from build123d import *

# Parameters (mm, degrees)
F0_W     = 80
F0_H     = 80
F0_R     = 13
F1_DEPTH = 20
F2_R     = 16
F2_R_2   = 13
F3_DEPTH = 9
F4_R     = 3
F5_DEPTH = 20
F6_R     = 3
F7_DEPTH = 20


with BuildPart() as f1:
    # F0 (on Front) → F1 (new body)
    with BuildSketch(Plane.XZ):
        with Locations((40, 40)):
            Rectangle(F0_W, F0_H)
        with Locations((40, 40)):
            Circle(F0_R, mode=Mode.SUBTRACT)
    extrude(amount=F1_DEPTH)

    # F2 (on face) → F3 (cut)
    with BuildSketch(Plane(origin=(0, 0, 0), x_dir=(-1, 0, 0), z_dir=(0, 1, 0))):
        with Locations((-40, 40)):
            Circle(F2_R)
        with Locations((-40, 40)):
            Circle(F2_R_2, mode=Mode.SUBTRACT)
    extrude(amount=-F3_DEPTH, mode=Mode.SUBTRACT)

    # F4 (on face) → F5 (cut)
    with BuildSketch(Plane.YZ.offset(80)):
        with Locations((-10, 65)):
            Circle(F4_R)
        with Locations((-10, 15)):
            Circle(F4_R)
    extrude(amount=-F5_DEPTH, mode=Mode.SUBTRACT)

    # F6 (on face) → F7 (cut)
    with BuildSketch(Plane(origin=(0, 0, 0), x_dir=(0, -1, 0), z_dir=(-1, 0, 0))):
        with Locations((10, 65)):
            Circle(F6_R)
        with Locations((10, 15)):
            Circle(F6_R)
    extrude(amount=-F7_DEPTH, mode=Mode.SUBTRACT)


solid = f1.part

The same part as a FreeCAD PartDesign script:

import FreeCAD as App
import Part
import Sketcher
Q = App.Units.Quantity


def add_polygon(sketch, points):
    """Adds a closed chain of lines whose ends are joined by coincident constraints."""
    first, n = sketch.GeometryCount, len(points)
    for a, b in zip(points, points[1:] + points[:1]):
        sketch.addGeometry(Part.LineSegment(App.Vector(*a, 0), App.Vector(*b, 0)), False)
    for i in range(n):
        sketch.addConstraint(Sketcher.Constraint("Coincident", first + i, 2, first + (i + 1) % n, 1))

doc = App.newDocument("Part")
params = doc.addObject("Spreadsheet::Sheet", "Params")
for row, (alias, value) in enumerate([
    ("sketch1_diameter", "26 mm"),
    ("sketch1_width", "80 mm"),
    ("pad1_length", "20 mm"),
    ("sketch2_diameter", "32 mm"),
    ("sketch2_diameter2", "26 mm"),
    ("pocket1_length", "9 mm"),
    ("sketch3_diameter", "6 mm"),
    ("pocket2_length", "20 mm"),
    ("sketch4_diameter", "6 mm"),
    ("pocket3_length", "20 mm"),
], start=1):
    params.set(f"A{row}", alias)
    params.set(f"B{row}", "=" + value)
    params.setAlias(f"B{row}", alias)

body = doc.addObject("PartDesign::Body", "Body")

# Sketch on XZ plane
sketch1 = body.newObject("Sketcher::SketchObject", "Sketch")
sketch1.AttachmentSupport = (doc.getObject("XZ_Plane"), [""])
sketch1.MapMode = "FlatFace"
add_polygon(sketch1, [(0, 80), (0, 0), (80, 0), (80, 80)])  # lines 0-3
sketch1.addGeometry(Part.Circle(App.Vector(40, 40, 0), App.Vector(0, 0, 1), 13), False)  # 4
sketch1.addConstraint([
    Sketcher.Constraint("Vertical", 0),
    Sketcher.Constraint("Horizontal", 1),
    Sketcher.Constraint("Vertical", 2),
    Sketcher.Constraint("Horizontal", 3),
    Sketcher.Constraint("Coincident", 0, 2, -1, 1),
    Sketcher.Constraint("Equal", 3, 0),
    Sketcher.Constraint("Diameter", 4, Q("26 mm")),
    Sketcher.Constraint("DistanceX", 1, 1, 1, 2, Q("80 mm")),
    Sketcher.Constraint("DistanceX", -1, 1, 4, 3, Q("40 mm")),
    Sketcher.Constraint("DistanceY", -1, 1, 4, 3, Q("40 mm")),
])
sketch1.setExpression("Constraints[10]", "Params.sketch1_diameter")
sketch1.setExpression("Constraints[11]", "Params.sketch1_width")
pad1 = body.newObject("PartDesign::Pad", "Pad")
pad1.Profile = sketch1
pad1.setExpression("Length", "Params.pad1_length")

# Sketch on XZ plane
sketch2 = body.newObject("Sketcher::SketchObject", "Sketch001")
sketch2.AttachmentSupport = (doc.getObject("XZ_Plane"), [""])
sketch2.MapMode = "FlatFace"
sketch2.addGeometry([
    Part.Circle(App.Vector(40, 40, 0), App.Vector(0, 0, 1), 16),
    Part.Circle(App.Vector(40, 40, 0), App.Vector(0, 0, 1), 13),
], False)
sketch2.addConstraint([
    Sketcher.Constraint("Coincident", 1, 3, 0, 3),
    Sketcher.Constraint("Diameter", 0, Q("32 mm")),
    Sketcher.Constraint("Diameter", 1, Q("26 mm")),
    Sketcher.Constraint("DistanceX", -1, 1, 0, 3, Q("40 mm")),
    Sketcher.Constraint("DistanceY", -1, 1, 0, 3, Q("40 mm")),
])
sketch2.setExpression("Constraints[1]", "Params.sketch2_diameter")
sketch2.setExpression("Constraints[2]", "Params.sketch2_diameter2")
pocket1 = body.newObject("PartDesign::Pocket", "Pocket")
pocket1.Profile = sketch2
pocket1.setExpression("Length", "Params.pocket1_length")
pocket1.Reversed = True

# Sketch on YZ plane
sketch3 = body.newObject("Sketcher::SketchObject", "Sketch002")
sketch3.AttachmentSupport = (doc.getObject("YZ_Plane"), [""])
sketch3.MapMode = "FlatFace"
sketch3.AttachmentOffset = App.Placement(App.Vector(0, 0, 80), App.Rotation())
sketch3.addGeometry([
    Part.Circle(App.Vector(-10, 65, 0), App.Vector(0, 0, 1), 3),
    Part.Circle(App.Vector(-10, 15, 0), App.Vector(0, 0, 1), 3),
], False)
sketch3.addConstraint([
    Sketcher.Constraint("Equal", 0, 1),
    Sketcher.Constraint("Vertical", 0, 3, 1, 3),
    Sketcher.Constraint("Diameter", 0, Q("6 mm")),
    Sketcher.Constraint("DistanceX", 0, 3, -1, 1, Q("10 mm")),
    Sketcher.Constraint("DistanceY", -1, 1, 0, 3, Q("65 mm")),
    Sketcher.Constraint("DistanceY", -1, 1, 1, 3, Q("15 mm")),
])
sketch3.setExpression("Constraints[2]", "Params.sketch3_diameter")
pocket2 = body.newObject("PartDesign::Pocket", "Pocket001")
pocket2.Profile = sketch3
pocket2.setExpression("Length", "Params.pocket2_length")

# Sketch on YZ plane
sketch4 = body.newObject("Sketcher::SketchObject", "Sketch003")
sketch4.AttachmentSupport = (doc.getObject("YZ_Plane"), [""])
sketch4.MapMode = "FlatFace"
sketch4.addGeometry([
    Part.Circle(App.Vector(-10, 65, 0), App.Vector(0, 0, 1), 3),
    Part.Circle(App.Vector(-10, 15, 0), App.Vector(0, 0, 1), 3),
], False)
sketch4.addConstraint([
    Sketcher.Constraint("Equal", 0, 1),
    Sketcher.Constraint("Vertical", 0, 3, 1, 3),
    Sketcher.Constraint("Diameter", 0, Q("6 mm")),
    Sketcher.Constraint("DistanceX", 0, 3, -1, 1, Q("10 mm")),
    Sketcher.Constraint("DistanceY", -1, 1, 0, 3, Q("65 mm")),
    Sketcher.Constraint("DistanceY", -1, 1, 1, 3, Q("15 mm")),
])
sketch4.setExpression("Constraints[2]", "Params.sketch4_diameter")
pocket3 = body.newObject("PartDesign::Pocket", "Pocket002")
pocket3.Profile = sketch4
pocket3.setExpression("Length", "Params.pocket3_length")
pocket3.Reversed = True

doc.recompute()
